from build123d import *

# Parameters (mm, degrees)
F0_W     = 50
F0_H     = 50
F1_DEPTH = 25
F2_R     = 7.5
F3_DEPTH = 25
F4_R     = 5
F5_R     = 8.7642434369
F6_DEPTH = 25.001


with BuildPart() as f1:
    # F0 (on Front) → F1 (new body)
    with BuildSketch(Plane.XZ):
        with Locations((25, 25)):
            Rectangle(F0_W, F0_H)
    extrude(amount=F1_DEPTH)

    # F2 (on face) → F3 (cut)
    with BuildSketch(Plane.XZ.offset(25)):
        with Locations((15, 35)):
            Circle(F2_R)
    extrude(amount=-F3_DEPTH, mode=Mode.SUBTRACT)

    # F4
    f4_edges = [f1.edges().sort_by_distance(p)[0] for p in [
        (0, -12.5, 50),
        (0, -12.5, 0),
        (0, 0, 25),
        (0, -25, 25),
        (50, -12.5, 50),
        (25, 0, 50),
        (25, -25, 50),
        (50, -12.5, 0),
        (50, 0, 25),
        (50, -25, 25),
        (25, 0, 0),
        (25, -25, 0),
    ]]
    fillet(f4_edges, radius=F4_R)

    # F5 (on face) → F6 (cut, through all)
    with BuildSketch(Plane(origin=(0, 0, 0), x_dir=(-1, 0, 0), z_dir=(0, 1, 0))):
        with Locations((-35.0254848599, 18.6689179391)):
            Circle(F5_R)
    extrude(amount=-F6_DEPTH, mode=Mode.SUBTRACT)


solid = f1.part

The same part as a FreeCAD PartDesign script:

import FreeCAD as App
import Part
import Sketcher

V = App.Vector
Q = App.Units.Quantity


def edges_at(feature, points):
    """Names of the edges that pass closest to the given points."""
    edges = feature.Shape.Edges
    near = lambda p: min(range(len(edges)), key=lambda i: edges[i].distToShape(Part.Vertex(*p))[0])
    return sorted({f"Edge{near(p) + 1}" for p in points})


def add_polygon(sketch, points):
    """Adds a closed chain of lines whose ends are joined by coincident constraints."""
    first, n = sketch.GeometryCount, len(points)
    for a, b in zip(points, points[1:] + points[:1]):
        sketch.addGeometry(Part.LineSegment(App.Vector(*a, 0), App.Vector(*b, 0)), False)
    for i in range(n):
        sketch.addConstraint(Sketcher.Constraint("Coincident", first + i, 2, first + (i + 1) % n, 1))

doc = App.newDocument("Part")
params = doc.addObject("Spreadsheet::Sheet", "Params")
for row, (alias, value) in enumerate([
    ("sketch1_width", "50 mm"),
    ("pad1_length", "25 mm"),
    ("sketch2_diameter", "15 mm"),
    ("pocket1_length", "25 mm"),
    ("fillet_radius", "5 mm"),
], start=1):
    params.set(f"A{row}", alias)
    params.set(f"B{row}", "=" + value)
    params.setAlias(f"B{row}", alias)

body = doc.addObject("PartDesign::Body", "Body")

# Sketch on XZ plane
sketch1 = body.newObject("Sketcher::SketchObject", "Sketch")
sketch1.AttachmentSupport = (doc.getObject("XZ_Plane"), [""])
sketch1.MapMode = "FlatFace"
add_polygon(sketch1, [(0, 50), (0, 0), (50, 0), (50, 50)])  # lines 0-3
sketch1.addConstraint([
    Sketcher.Constraint("Vertical", 0),
    Sketcher.Constraint("Horizontal", 1),
    Sketcher.Constraint("Vertical", 2),
    Sketcher.Constraint("Horizontal", 3),
    Sketcher.Constraint("Coincident", 0, 2, -1, 1),
    Sketcher.Constraint("Equal", 3, 0),
    Sketcher.Constraint("DistanceX", 1, 1, 1, 2, Q("50 mm")),
])
sketch1.setExpression("Constraints[10]", "Params.sketch1_width")
pad1 = body.newObject("PartDesign::Pad", "Pad")
pad1.Profile = sketch1
pad1.setExpression("Length", "Params.pad1_length")

# Sketch on XZ plane
sketch2 = body.newObject("Sketcher::SketchObject", "Sketch001")
sketch2.AttachmentSupport = (doc.getObject("XZ_Plane"), [""])
sketch2.MapMode = "FlatFace"
sketch2.AttachmentOffset = App.Placement(V(0, 0, 25), App.Rotation())
sketch2.addGeometry(Part.Circle(V(15, 35, 0), V(0, 0, 1), 7.5), False)
sketch2.addConstraint([
    Sketcher.Constraint("Diameter", 0, Q("15 mm")),
    Sketcher.Constraint("DistanceX", -1, 1, 0, 3, Q("15 mm")),
    Sketcher.Constraint("DistanceY", -1, 1, 0, 3, Q("35 mm")),
])
sketch2.setExpression("Constraints[0]", "Params.sketch2_diameter")
pocket1 = body.newObject("PartDesign::Pocket", "Pocket")
pocket1.Profile = sketch2
pocket1.setExpression("Length", "Params.pocket1_length")
doc.recompute()

fillet = body.newObject("PartDesign::Fillet", "Fillet")
fillet.Base = (pocket1, edges_at(pocket1, [
    (0, -12.5, 50),
    (0, -12.5, 0),
    (0, 0, 25),
    (0, -25, 25),
    (50, -12.5, 50),
    (25, 0, 50),
    (25, -25, 50),
    (50, -12.5, 0),
    (50, 0, 25),
    (50, -25, 25),
    (25, 0, 0),
    (25, -25, 0),
]))
fillet.setExpression("Radius", "Params.fillet_radius")

# Sketch on XZ plane
sketch3 = body.newObject("Sketcher::SketchObject", "Sketch002")
sketch3.AttachmentSupport = (doc.getObject("XZ_Plane"), [""])
sketch3.MapMode = "FlatFace"
sketch3.addGeometry(Part.Circle(V(35.025485, 18.668918, 0), V(0, 0, 1), 8.764243), False)
sketch3.addConstraint([
    Sketcher.Constraint("Diameter", 0, Q("17.528487 mm")),
    Sketcher.Constraint("DistanceX", -1, 1, 0, 3, Q("35.025485 mm")),
    Sketcher.Constraint("DistanceY", -1, 1, 0, 3, Q("18.668918 mm")),
])
pocket2 = body.newObject("PartDesign::Pocket", "Pocket001")
pocket2.Profile = sketch3
pocket2.Type = "ThroughAll"
pocket2.Reversed = True

doc.recompute()
